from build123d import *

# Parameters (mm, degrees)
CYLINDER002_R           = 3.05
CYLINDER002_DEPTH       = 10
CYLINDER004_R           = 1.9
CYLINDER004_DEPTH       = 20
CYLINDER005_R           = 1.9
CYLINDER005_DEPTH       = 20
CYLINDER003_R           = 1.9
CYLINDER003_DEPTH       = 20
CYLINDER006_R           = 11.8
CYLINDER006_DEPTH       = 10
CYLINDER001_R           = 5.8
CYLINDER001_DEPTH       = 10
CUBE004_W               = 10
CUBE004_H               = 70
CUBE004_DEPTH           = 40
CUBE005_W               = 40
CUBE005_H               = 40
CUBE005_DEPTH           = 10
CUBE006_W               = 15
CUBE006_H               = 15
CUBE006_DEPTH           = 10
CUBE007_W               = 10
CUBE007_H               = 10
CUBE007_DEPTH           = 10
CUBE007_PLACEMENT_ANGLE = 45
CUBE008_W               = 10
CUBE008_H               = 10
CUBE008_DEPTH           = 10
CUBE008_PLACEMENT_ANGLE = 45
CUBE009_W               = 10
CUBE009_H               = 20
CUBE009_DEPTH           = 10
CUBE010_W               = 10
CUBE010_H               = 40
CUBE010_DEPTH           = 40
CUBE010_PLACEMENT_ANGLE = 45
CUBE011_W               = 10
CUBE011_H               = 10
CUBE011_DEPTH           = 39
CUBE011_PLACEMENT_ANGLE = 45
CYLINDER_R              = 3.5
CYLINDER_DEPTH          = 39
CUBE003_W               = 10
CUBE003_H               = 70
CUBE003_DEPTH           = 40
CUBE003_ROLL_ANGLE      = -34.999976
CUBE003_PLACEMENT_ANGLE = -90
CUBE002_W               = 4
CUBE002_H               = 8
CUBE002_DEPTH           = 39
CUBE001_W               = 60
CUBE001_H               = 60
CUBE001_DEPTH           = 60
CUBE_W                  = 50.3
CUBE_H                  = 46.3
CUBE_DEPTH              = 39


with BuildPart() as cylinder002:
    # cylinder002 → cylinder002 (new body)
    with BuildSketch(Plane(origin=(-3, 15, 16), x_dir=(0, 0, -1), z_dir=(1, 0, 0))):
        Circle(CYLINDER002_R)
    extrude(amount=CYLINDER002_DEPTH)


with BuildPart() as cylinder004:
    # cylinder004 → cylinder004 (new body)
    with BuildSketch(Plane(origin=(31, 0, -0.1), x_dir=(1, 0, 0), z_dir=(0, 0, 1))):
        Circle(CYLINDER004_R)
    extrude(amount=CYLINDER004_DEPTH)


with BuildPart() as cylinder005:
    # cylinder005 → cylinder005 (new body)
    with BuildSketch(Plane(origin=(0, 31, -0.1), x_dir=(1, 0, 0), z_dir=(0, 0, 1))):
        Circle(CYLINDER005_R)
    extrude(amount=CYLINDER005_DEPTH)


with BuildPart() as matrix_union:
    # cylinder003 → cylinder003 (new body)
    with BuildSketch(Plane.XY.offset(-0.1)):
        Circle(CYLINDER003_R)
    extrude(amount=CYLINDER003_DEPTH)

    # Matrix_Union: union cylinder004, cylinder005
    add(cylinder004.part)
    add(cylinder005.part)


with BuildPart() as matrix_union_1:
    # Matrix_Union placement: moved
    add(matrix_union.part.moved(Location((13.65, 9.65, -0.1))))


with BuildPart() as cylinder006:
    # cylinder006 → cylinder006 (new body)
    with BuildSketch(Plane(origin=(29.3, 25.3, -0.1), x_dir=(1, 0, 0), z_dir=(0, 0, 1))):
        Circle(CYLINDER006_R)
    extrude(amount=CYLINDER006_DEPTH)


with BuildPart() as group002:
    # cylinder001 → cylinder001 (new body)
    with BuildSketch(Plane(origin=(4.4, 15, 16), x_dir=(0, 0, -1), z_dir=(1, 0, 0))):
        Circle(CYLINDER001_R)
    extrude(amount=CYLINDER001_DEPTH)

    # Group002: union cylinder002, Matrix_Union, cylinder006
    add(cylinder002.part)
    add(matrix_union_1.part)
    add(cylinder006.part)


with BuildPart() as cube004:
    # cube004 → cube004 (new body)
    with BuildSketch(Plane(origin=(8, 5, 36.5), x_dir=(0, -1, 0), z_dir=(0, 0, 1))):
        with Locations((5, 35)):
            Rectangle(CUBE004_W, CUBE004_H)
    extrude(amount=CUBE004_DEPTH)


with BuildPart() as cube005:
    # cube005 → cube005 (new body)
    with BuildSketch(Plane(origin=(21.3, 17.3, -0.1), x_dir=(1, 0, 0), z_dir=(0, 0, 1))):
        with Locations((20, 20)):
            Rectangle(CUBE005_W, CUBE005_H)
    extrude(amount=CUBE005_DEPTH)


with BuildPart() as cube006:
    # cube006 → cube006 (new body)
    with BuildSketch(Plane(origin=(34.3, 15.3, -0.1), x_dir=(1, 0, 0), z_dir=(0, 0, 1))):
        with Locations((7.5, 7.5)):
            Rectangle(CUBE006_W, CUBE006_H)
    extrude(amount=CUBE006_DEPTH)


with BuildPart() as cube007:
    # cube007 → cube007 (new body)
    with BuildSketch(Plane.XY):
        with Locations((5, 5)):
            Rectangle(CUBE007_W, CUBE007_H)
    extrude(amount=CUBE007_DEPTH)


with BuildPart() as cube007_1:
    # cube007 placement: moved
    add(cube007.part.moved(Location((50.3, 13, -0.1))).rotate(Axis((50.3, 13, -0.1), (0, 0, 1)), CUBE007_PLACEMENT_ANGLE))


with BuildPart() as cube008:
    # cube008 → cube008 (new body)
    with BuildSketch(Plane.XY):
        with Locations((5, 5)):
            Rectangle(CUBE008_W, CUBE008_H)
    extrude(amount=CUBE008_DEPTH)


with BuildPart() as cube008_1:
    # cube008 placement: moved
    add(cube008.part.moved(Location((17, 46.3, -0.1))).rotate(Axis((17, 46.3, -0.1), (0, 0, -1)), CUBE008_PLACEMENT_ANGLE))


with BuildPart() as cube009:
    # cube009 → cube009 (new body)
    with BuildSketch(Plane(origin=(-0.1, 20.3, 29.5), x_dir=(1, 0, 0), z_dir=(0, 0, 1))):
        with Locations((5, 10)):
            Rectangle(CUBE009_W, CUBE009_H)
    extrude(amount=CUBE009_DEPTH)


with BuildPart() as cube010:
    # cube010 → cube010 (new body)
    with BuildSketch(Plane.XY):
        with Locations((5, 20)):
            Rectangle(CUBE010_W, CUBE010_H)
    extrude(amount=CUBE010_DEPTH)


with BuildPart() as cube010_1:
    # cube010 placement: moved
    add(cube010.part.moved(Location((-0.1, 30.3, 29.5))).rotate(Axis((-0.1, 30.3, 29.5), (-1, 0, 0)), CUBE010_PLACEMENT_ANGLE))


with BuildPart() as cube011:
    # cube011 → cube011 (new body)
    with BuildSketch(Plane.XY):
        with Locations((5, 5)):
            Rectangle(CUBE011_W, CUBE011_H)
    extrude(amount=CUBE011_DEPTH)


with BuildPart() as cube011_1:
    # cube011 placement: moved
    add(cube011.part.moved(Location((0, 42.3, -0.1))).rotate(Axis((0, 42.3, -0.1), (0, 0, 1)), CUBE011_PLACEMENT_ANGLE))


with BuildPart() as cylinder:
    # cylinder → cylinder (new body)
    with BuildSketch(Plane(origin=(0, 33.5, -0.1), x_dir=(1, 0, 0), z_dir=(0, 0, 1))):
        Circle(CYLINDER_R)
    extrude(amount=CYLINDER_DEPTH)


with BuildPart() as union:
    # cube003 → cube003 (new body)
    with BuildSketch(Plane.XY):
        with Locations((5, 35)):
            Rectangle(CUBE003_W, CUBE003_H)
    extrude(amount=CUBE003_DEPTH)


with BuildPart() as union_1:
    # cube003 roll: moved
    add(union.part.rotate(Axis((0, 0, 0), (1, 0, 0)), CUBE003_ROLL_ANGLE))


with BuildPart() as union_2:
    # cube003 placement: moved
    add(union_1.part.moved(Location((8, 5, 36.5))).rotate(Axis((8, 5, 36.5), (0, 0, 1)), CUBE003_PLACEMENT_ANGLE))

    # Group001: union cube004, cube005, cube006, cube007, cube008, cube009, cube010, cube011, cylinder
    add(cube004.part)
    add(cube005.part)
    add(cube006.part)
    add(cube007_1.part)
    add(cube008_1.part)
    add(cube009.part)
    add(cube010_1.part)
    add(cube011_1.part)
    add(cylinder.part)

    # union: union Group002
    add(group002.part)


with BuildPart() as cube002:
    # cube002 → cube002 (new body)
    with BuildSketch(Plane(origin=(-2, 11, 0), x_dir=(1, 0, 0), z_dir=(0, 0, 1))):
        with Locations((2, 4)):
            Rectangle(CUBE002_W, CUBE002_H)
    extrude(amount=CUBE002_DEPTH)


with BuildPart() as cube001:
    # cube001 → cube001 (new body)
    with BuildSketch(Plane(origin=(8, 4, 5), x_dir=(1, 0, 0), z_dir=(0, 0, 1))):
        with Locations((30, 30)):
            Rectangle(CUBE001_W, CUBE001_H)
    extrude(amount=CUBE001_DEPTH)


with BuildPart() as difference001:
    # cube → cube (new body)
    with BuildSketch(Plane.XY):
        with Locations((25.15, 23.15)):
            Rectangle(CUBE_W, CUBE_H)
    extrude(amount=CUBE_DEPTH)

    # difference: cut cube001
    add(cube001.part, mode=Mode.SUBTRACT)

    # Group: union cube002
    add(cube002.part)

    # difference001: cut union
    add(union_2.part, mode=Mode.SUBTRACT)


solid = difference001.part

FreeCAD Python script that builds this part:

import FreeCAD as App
import Part
import Sketcher

V = App.Vector
Q = App.Units.Quantity


def add_polygon(sketch, points):
    """Adds a closed chain of lines whose ends are joined by coincident constraints."""
    first, n = sketch.GeometryCount, len(points)
    for a, b in zip(points, points[1:] + points[:1]):
        sketch.addGeometry(Part.LineSegment(App.Vector(*a, 0), App.Vector(*b, 0)), False)
    for i in range(n):
        sketch.addConstraint(Sketcher.Constraint("Coincident", first + i, 2, first + (i + 1) % n, 1))

doc = App.newDocument("Part")
body = doc.addObject("PartDesign::Body", "Body")

# Sketch on YZ plane
sketch1 = body.newObject("Sketcher::SketchObject", "Sketch")
sketch1.AttachmentSupport = (doc.getObject("YZ_Plane"), [""])
sketch1.MapMode = "FlatFace"
sketch1.AttachmentOffset = App.Placement(V(0, 0, -3), App.Rotation())
sketch1.addGeometry(Part.Circle(V(15, 16, 0), V(0, 0, 1), 3), False)
sketch1.addConstraint([
    Sketcher.Constraint("Diameter", 0, Q("6.1 mm")),
    Sketcher.Constraint("DistanceX", -1, 1, 0, 3, Q("15 mm")),
    Sketcher.Constraint("DistanceY", -1, 1, 0, 3, Q("16 mm")),
])
pad1 = body.newObject("PartDesign::Pad", "Pad")
pad1.Profile = sketch1
pad1.Length = 10
body2 = doc.addObject("PartDesign::Body", "Body001")

# Sketch on XY plane
sketch2 = body2.newObject("Sketcher::SketchObject", "Sketch001")
sketch2.AttachmentSupport = (doc.getObject("XY_Plane001"), [""])
sketch2.MapMode = "FlatFace"
sketch2.AttachmentOffset = App.Placement(V(0, 0, -0.1), App.Rotation())
sketch2.addGeometry(Part.Circle(V(31, 0, 0), V(0, 0, 1), 1.9), False)
sketch2.addConstraint([
    Sketcher.Constraint("PointOnObject", 0, 3, -1),
    Sketcher.Constraint("Diameter", 0, Q("3.8 mm")),
    Sketcher.Constraint("DistanceX", -1, 1, 0, 3, Q("31 mm")),
])
pad2 = body2.newObject("PartDesign::Pad", "Pad001")
pad2.Profile = sketch2
pad2.Length = 20
body3 = doc.addObject("PartDesign::Body", "Body002")

# Sketch on XY plane
sketch3 = body3.newObject("Sketcher::SketchObject", "Sketch002")
sketch3.AttachmentSupport = (doc.getObject("XY_Plane002"), [""])
sketch3.MapMode = "FlatFace"
sketch3.AttachmentOffset = App.Placement(V(0, 0, -0.1), App.Rotation())
sketch3.addGeometry(Part.Circle(V(0, 31, 0), V(0, 0, 1), 1.9), False)
sketch3.addConstraint([
    Sketcher.Constraint("PointOnObject", 0, 3, -2),
    Sketcher.Constraint("Diameter", 0, Q("3.8 mm")),
    Sketcher.Constraint("DistanceY", -1, 1, 0, 3, Q("31 mm")),
])
pad3 = body3.newObject("PartDesign::Pad", "Pad002")
pad3.Profile = sketch3
pad3.Length = 20
body4 = doc.addObject("PartDesign::Body", "Body003")
body4.AllowCompound = True

# Sketch on XY plane
sketch4 = body4.newObject("Sketcher::SketchObject", "Sketch003")
sketch4.AttachmentSupport = (doc.getObject("XY_Plane003"), [""])
sketch4.MapMode = "FlatFace"
sketch4.AttachmentOffset = App.Placement(V(0, 0, -0.1), App.Rotation())
sketch4.addGeometry(Part.Circle(V(0, 0, 0), V(0, 0, 1), 1.9), False)
sketch4.addConstraint([
    Sketcher.Constraint("Coincident", 0, 3, -1, 1),
    Sketcher.Constraint("Diameter", 0, Q("3.8 mm")),
])
pad4 = body4.newObject("PartDesign::Pad", "Pad003")
pad4.Profile = sketch4
pad4.Length = 20
doc.recompute()

boolean = body4.newObject("PartDesign::Boolean", "Boolean")
boolean.Type = "Fuse"
boolean.addObjects([body2])
doc.recompute()

boolean2 = body4.newObject("PartDesign::Boolean", "Boolean001")
boolean2.Type = "Fuse"
boolean2.addObjects([body3])
body5 = doc.addObject("PartDesign::Body", "Body004")
body5.AllowCompound = True
doc.recompute()

body4.Placement = App.Placement(V(13.65, 9.65, -0.1), App.Rotation(V(0, 0, 1), 0))
boolean3 = body5.newObject("PartDesign::Boolean", "Boolean002")
boolean3.Type = "Fuse"
boolean3.addObjects([body4])
body6 = doc.addObject("PartDesign::Body", "Body005")

# Sketch on XY plane
sketch5 = body6.newObject("Sketcher::SketchObject", "Sketch004")
sketch5.AttachmentSupport = (doc.getObject("XY_Plane005"), [""])
sketch5.MapMode = "FlatFace"
sketch5.AttachmentOffset = App.Placement(V(0, 0, -0.1), App.Rotation())
sketch5.addGeometry(Part.Circle(V(29, 25, 0), V(0, 0, 1), 12), False)
sketch5.addConstraint([
    Sketcher.Constraint("Diameter", 0, Q("23.6 mm")),
    Sketcher.Constraint("DistanceX", -1, 1, 0, 3, Q("29.3 mm")),
    Sketcher.Constraint("DistanceY", -1, 1, 0, 3, Q("25.3 mm")),
])
pad5 = body6.newObject("PartDesign::Pad", "Pad004")
pad5.Profile = sketch5
pad5.Length = 10
body7 = doc.addObject("PartDesign::Body", "Body006")
body7.AllowCompound = True

# Sketch on YZ plane
sketch6 = body7.newObject("Sketcher::SketchObject", "Sketch005")
sketch6.AttachmentSupport = (doc.getObject("YZ_Plane006"), [""])
sketch6.MapMode = "FlatFace"
sketch6.AttachmentOffset = App.Placement(V(0, 0, 4.4), App.Rotation())
sketch6.addGeometry(Part.Circle(V(15, 16, 0), V(0, 0, 1), 6), False)
sketch6.addConstraint([
    Sketcher.Constraint("Diameter", 0, Q("11.6 mm")),
    Sketcher.Constraint("DistanceX", -1, 1, 0, 3, Q("15 mm")),
    Sketcher.Constraint("DistanceY", -1, 1, 0, 3, Q("16 mm")),
])
pad6 = body7.newObject("PartDesign::Pad", "Pad005")
pad6.Profile = sketch6
pad6.Length = 10
doc.recompute()

boolean4 = body7.newObject("PartDesign::Boolean", "Boolean003")
boolean4.Type = "Fuse"
boolean4.addObjects([body])
doc.recompute()

boolean5 = body7.newObject("PartDesign::Boolean", "Boolean004")
boolean5.Type = "Fuse"
boolean5.addObjects([body5])
doc.recompute()

boolean6 = body7.newObject("PartDesign::Boolean", "Boolean005")
boolean6.Type = "Fuse"
boolean6.addObjects([body6])
body8 = doc.addObject("PartDesign::Body", "Body007")

# Sketch on XY plane
sketch7 = body8.newObject("Sketcher::SketchObject", "Sketch006")
sketch7.AttachmentSupport = (doc.getObject("XY_Plane007"), [""])
sketch7.MapMode = "FlatFace"
sketch7.AttachmentOffset = App.Placement(V(0, 0, 36.5), App.Rotation())
add_polygon(sketch7, [(78, 5), (8, 5), (8, -5), (78, -5)])  # lines 0-3
sketch7.addConstraint([
    Sketcher.Constraint("Horizontal", 0),
    Sketcher.Constraint("Vertical", 1),
    Sketcher.Constraint("Horizontal", 2),
    Sketcher.Constraint("Vertical", 3),
    Sketcher.Constraint("DistanceX", 0, 2, 0, 1, Q("70 mm")),
    Sketcher.Constraint("DistanceY", 1, 2, 1, 1, Q("10 mm")),
    Sketcher.Constraint("DistanceX", -1, 1, 0, 2, Q("8 mm")),
    Sketcher.Constraint("DistanceY", -1, 1, 0, 2, Q("5 mm")),
])
pad7 = body8.newObject("PartDesign::Pad", "Pad006")
pad7.Profile = sketch7
pad7.Length = 40
body9 = doc.addObject("PartDesign::Body", "Body008")

# Sketch on XY plane
sketch8 = body9.newObject("Sketcher::SketchObject", "Sketch007")
sketch8.AttachmentSupport = (doc.getObject("XY_Plane008"), [""])
sketch8.MapMode = "FlatFace"
sketch8.AttachmentOffset = App.Placement(V(0, 0, -0.1), App.Rotation())
add_polygon(sketch8, [(21, 57), (21, 17), (61, 17), (61, 57)])  # lines 0-3
sketch8.addConstraint([
    Sketcher.Constraint("Vertical", 0),
    Sketcher.Constraint("Horizontal", 1),
    Sketcher.Constraint("Vertical", 2),
    Sketcher.Constraint("Horizontal", 3),
    Sketcher.Constraint("Equal", 3, 0),
    Sketcher.Constraint("DistanceX", 1, 1, 1, 2, Q("40 mm")),
    Sketcher.Constraint("DistanceX", -1, 1, 0, 2, Q("21.3 mm")),
    Sketcher.Constraint("DistanceY", -1, 1, 0, 2, Q("17.3 mm")),
])
pad8 = body9.newObject("PartDesign::Pad", "Pad007")
pad8.Profile = sketch8
pad8.Length = 10
body10 = doc.addObject("PartDesign::Body", "Body009")

# Sketch on XY plane
sketch9 = body10.newObject("Sketcher::SketchObject", "Sketch008")
sketch9.AttachmentSupport = (doc.getObject("XY_Plane009"), [""])
sketch9.MapMode = "FlatFace"
sketch9.AttachmentOffset = App.Placement(V(0, 0, -0.1), App.Rotation())
add_polygon(sketch9, [(34, 30), (34, 15), (49, 15), (49, 30)])  # lines 0-3
sketch9.addConstraint([
    Sketcher.Constraint("Vertical", 0),
    Sketcher.Constraint("Horizontal", 1),
    Sketcher.Constraint("Vertical", 2),
    Sketcher.Constraint("Horizontal", 3),
    Sketcher.Constraint("Equal", 3, 0),
    Sketcher.Constraint("DistanceX", 1, 1, 1, 2, Q("15 mm")),
    Sketcher.Constraint("DistanceX", -1, 1, 0, 2, Q("34.3 mm")),
    Sketcher.Constraint("DistanceY", -1, 1, 0, 2, Q("15.3 mm")),
])
pad9 = body10.newObject("PartDesign::Pad", "Pad008")
pad9.Profile = sketch9
pad9.Length = 10
body11 = doc.addObject("PartDesign::Body", "Body010")

# Sketch on XY plane
sketch10 = body11.newObject("Sketcher::SketchObject", "Sketch009")
sketch10.AttachmentSupport = (doc.getObject("XY_Plane010"), [""])
sketch10.MapMode = "FlatFace"
add_polygon(sketch10, [(0, 10), (0, 0), (10, 0), (10, 10)])  # lines 0-3
sketch10.addConstraint([
    Sketcher.Constraint("Vertical", 0),
    Sketcher.Constraint("Horizontal", 1),
    Sketcher.Constraint("Vertical", 2),
    Sketcher.Constraint("Horizontal", 3),
    Sketcher.Constraint("Coincident", 0, 2, -1, 1),
    Sketcher.Constraint("Equal", 3, 0),
    Sketcher.Constraint("DistanceX", 1, 1, 1, 2, Q("10 mm")),
])
pad10 = body11.newObject("PartDesign::Pad", "Pad009")
pad10.Profile = sketch10
pad10.Length = 10
body12 = doc.addObject("PartDesign::Body", "Body011")
doc.recompute()

body11.Placement = App.Placement(V(50.3, 13, -0.1), App.Rotation(V(0, 0, 1), 45))
boolean7 = body12.newObject("PartDesign::Boolean", "Boolean006")
boolean7.Type = "Fuse"
boolean7.addObjects([body11])
body13 = doc.addObject("PartDesign::Body", "Body012")

# Sketch on XY plane
sketch11 = body13.newObject("Sketcher::SketchObject", "Sketch010")
sketch11.AttachmentSupport = (doc.getObject("XY_Plane012"), [""])
sketch11.MapMode = "FlatFace"
add_polygon(sketch11, [(0, 10), (0, 0), (10, 0), (10, 10)])  # lines 0-3
sketch11.addConstraint([
    Sketcher.Constraint("Vertical", 0),
    Sketcher.Constraint("Horizontal", 1),
    Sketcher.Constraint("Vertical", 2),
    Sketcher.Constraint("Horizontal", 3),
    Sketcher.Constraint("Coincident", 0, 2, -1, 1),
    Sketcher.Constraint("Equal", 3, 0),
    Sketcher.Constraint("DistanceX", 1, 1, 1, 2, Q("10 mm")),
])
pad11 = body13.newObject("PartDesign::Pad", "Pad010")
pad11.Profile = sketch11
pad11.Length = 10
body14 = doc.addObject("PartDesign::Body", "Body013")
doc.recompute()

body13.Placement = App.Placement(V(17, 46.3, -0.1), App.Rotation(V(0, 0, -1), 45))
boolean8 = body14.newObject("PartDesign::Boolean", "Boolean007")
boolean8.Type = "Fuse"
boolean8.addObjects([body13])
body15 = doc.addObject("PartDesign::Body", "Body014")

# Sketch on XY plane
sketch12 = body15.newObject("Sketcher::SketchObject", "Sketch011")
sketch12.AttachmentSupport = (doc.getObject("XY_Plane014"), [""])
sketch12.MapMode = "FlatFace"
sketch12.AttachmentOffset = App.Placement(V(0, 0, 29.5), App.Rotation())
add_polygon(sketch12, [(0, 40), (0, 20), (10, 20), (10, 40)])  # lines 0-3
sketch12.addConstraint([
    Sketcher.Constraint("Vertical", 0),
    Sketcher.Constraint("Horizontal", 1),
    Sketcher.Constraint("Vertical", 2),
    Sketcher.Constraint("Horizontal", 3),
    Sketcher.Constraint("DistanceX", 1, 1, 1, 2, Q("10 mm")),
    Sketcher.Constraint("DistanceY", 0, 2, 0, 1, Q("20 mm")),
    Sketcher.Constraint("DistanceX", 0, 2, -1, 1, Q("0.1 mm")),
    Sketcher.Constraint("DistanceY", -1, 1, 0, 2, Q("20.3 mm")),
])
pad12 = body15.newObject("PartDesign::Pad", "Pad011")
pad12.Profile = sketch12
pad12.Length = 10
body16 = doc.addObject("PartDesign::Body", "Body015")

# Sketch on XY plane
sketch13 = body16.newObject("Sketcher::SketchObject", "Sketch012")
sketch13.AttachmentSupport = (doc.getObject("XY_Plane015"), [""])
sketch13.MapMode = "FlatFace"
add_polygon(sketch13, [(0, 40), (0, 0), (10, 0), (10, 40)])  # lines 0-3
sketch13.addConstraint([
    Sketcher.Constraint("Vertical", 0),
    Sketcher.Constraint("Horizontal", 1),
    Sketcher.Constraint("Vertical", 2),
    Sketcher.Constraint("Horizontal", 3),
    Sketcher.Constraint("Coincident", 0, 2, -1, 1),
    Sketcher.Constraint("DistanceX", 1, 1, 1, 2, Q("10 mm")),
    Sketcher.Constraint("DistanceY", 0, 2, 0, 1, Q("40 mm")),
])
pad13 = body16.newObject("PartDesign::Pad", "Pad012")
pad13.Profile = sketch13
pad13.Length = 40
body17 = doc.addObject("PartDesign::Body", "Body016")
doc.recompute()

body16.Placement = App.Placement(V(-0.1, 30.3, 29.5), App.Rotation(V(-1, 0, 0), 45))
boolean9 = body17.newObject("PartDesign::Boolean", "Boolean008")
boolean9.Type = "Fuse"
boolean9.addObjects([body16])
body18 = doc.addObject("PartDesign::Body", "Body017")

# Sketch on XY plane
sketch14 = body18.newObject("Sketcher::SketchObject", "Sketch013")
sketch14.AttachmentSupport = (doc.getObject("XY_Plane017"), [""])
sketch14.MapMode = "FlatFace"
add_polygon(sketch14, [(0, 10), (0, 0), (10, 0), (10, 10)])  # lines 0-3
sketch14.addConstraint([
    Sketcher.Constraint("Vertical", 0),
    Sketcher.Constraint("Horizontal", 1),
    Sketcher.Constraint("Vertical", 2),
    Sketcher.Constraint("Horizontal", 3),
    Sketcher.Constraint("Coincident", 0, 2, -1, 1),
    Sketcher.Constraint("Equal", 3, 0),
    Sketcher.Constraint("DistanceX", 1, 1, 1, 2, Q("10 mm")),
])
pad14 = body18.newObject("PartDesign::Pad", "Pad013")
pad14.Profile = sketch14
pad14.Length = 39
body19 = doc.addObject("PartDesign::Body", "Body018")
doc.recompute()

body18.Placement = App.Placement(V(0, 42.3, -0.1), App.Rotation(V(0, 0, 1), 45))
boolean10 = body19.newObject("PartDesign::Boolean", "Boolean009")
boolean10.Type = "Fuse"
boolean10.addObjects([body18])
body20 = doc.addObject("PartDesign::Body", "Body019")

# Sketch on XY plane
sketch15 = body20.newObject("Sketcher::SketchObject", "Sketch014")
sketch15.AttachmentSupport = (doc.getObject("XY_Plane019"), [""])
sketch15.MapMode = "FlatFace"
sketch15.AttachmentOffset = App.Placement(V(0, 0, -0.1), App.Rotation())
sketch15.addGeometry(Part.Circle(V(0, 33.5, 0), V(0, 0, 1), 3.5), False)
sketch15.addConstraint([
    Sketcher.Constraint("PointOnObject", 0, 3, -2),
    Sketcher.Constraint("Diameter", 0, Q("7 mm")),
    Sketcher.Constraint("DistanceY", -1, 1, 0, 3, Q("33.5 mm")),
])
pad15 = body20.newObject("PartDesign::Pad", "Pad014")
pad15.Profile = sketch15
pad15.Length = 39
body21 = doc.addObject("PartDesign::Body", "Body020")

# Sketch on XY plane
sketch16 = body21.newObject("Sketcher::SketchObject", "Sketch015")
sketch16.AttachmentSupport = (doc.getObject("XY_Plane020"), [""])
sketch16.MapMode = "FlatFace"
add_polygon(sketch16, [(0, 70), (0, 0), (10, 0), (10, 70)])  # lines 0-3
sketch16.addConstraint([
    Sketcher.Constraint("Vertical", 0),
    Sketcher.Constraint("Horizontal", 1),
    Sketcher.Constraint("Vertical", 2),
    Sketcher.Constraint("Horizontal", 3),
    Sketcher.Constraint("Coincident", 0, 2, -1, 1),
    Sketcher.Constraint("DistanceX", 1, 1, 1, 2, Q("10 mm")),
    Sketcher.Constraint("DistanceY", 0, 2, 0, 1, Q("70 mm")),
])
pad16 = body21.newObject("PartDesign::Pad", "Pad015")
pad16.Profile = sketch16
pad16.Length = 40
body22 = doc.addObject("PartDesign::Body", "Body021")
doc.recompute()

body21.Placement = App.Placement(V(0, 0, 0), App.Rotation(V(1, 0, 0), 325.000024))
boolean11 = body22.newObject("PartDesign::Boolean", "Boolean010")
boolean11.Type = "Fuse"
boolean11.addObjects([body21])
body23 = doc.addObject("PartDesign::Body", "Body022")
body23.AllowCompound = True
doc.recompute()

body22.Placement = App.Placement(V(8, 5, 36.5), App.Rotation(V(0, 0, 1), 270))
boolean12 = body23.newObject("PartDesign::Boolean", "Boolean011")
boolean12.Type = "Fuse"
boolean12.addObjects([body22])
doc.recompute()

boolean13 = body23.newObject("PartDesign::Boolean", "Boolean012")
boolean13.Type = "Fuse"
boolean13.addObjects([body8])
doc.recompute()

boolean14 = body23.newObject("PartDesign::Boolean", "Boolean013")
boolean14.Type = "Fuse"
boolean14.addObjects([body9])
doc.recompute()

boolean15 = body23.newObject("PartDesign::Boolean", "Boolean014")
boolean15.Type = "Fuse"
boolean15.addObjects([body10])
doc.recompute()

boolean16 = body23.newObject("PartDesign::Boolean", "Boolean015")
boolean16.Type = "Fuse"
boolean16.addObjects([body12])
doc.recompute()

boolean17 = body23.newObject("PartDesign::Boolean", "Boolean016")
boolean17.Type = "Fuse"
boolean17.addObjects([body14])
doc.recompute()

boolean18 = body23.newObject("PartDesign::Boolean", "Boolean017")
boolean18.Type = "Fuse"
boolean18.addObjects([body15])
doc.recompute()

boolean19 = body23.newObject("PartDesign::Boolean", "Boolean018")
boolean19.Type = "Fuse"
boolean19.addObjects([body17])
doc.recompute()

boolean20 = body23.newObject("PartDesign::Boolean", "Boolean019")
boolean20.Type = "Fuse"
boolean20.addObjects([body19])
doc.recompute()

boolean21 = body23.newObject("PartDesign::Boolean", "Boolean020")
boolean21.Type = "Fuse"
boolean21.addObjects([body20])
doc.recompute()

boolean22 = body23.newObject("PartDesign::Boolean", "Boolean021")
boolean22.Type = "Fuse"
boolean22.addObjects([body7])
body24 = doc.addObject("PartDesign::Body", "Body023")

# Sketch on XY plane
sketch17 = body24.newObject("Sketcher::SketchObject", "Sketch016")
sketch17.AttachmentSupport = (doc.getObject("XY_Plane023"), [""])
sketch17.MapMode = "FlatFace"
add_polygon(sketch17, [(-2, 19), (-2, 11), (2, 11), (2, 19)])  # lines 0-3
sketch17.addConstraint([
    Sketcher.Constraint("Vertical", 0),
    Sketcher.Constraint("Horizontal", 1),
    Sketcher.Constraint("Vertical", 2),
    Sketcher.Constraint("Horizontal", 3),
    Sketcher.Constraint("DistanceX", 1, 1, 1, 2, Q("4 mm")),
    Sketcher.Constraint("DistanceY", 0, 2, 0, 1, Q("8 mm")),
    Sketcher.Constraint("DistanceX", 0, 2, -1, 1, Q("2 mm")),
    Sketcher.Constraint("DistanceY", -1, 1, 0, 2, Q("11 mm")),
])
pad17 = body24.newObject("PartDesign::Pad", "Pad016")
pad17.Profile = sketch17
pad17.Length = 39
body25 = doc.addObject("PartDesign::Body", "Body024")

# Sketch on XY plane
sketch18 = body25.newObject("Sketcher::SketchObject", "Sketch017")
sketch18.AttachmentSupport = (doc.getObject("XY_Plane024"), [""])
sketch18.MapMode = "FlatFace"
sketch18.AttachmentOffset = App.Placement(V(0, 0, 5), App.Rotation())
add_polygon(sketch18, [(8, 64), (8, 4), (68, 4), (68, 64)])  # lines 0-3
sketch18.addConstraint([
    Sketcher.Constraint("Vertical", 0),
    Sketcher.Constraint("Horizontal", 1),
    Sketcher.Constraint("Vertical", 2),
    Sketcher.Constraint("Horizontal", 3),
    Sketcher.Constraint("Equal", 3, 0),
    Sketcher.Constraint("DistanceX", 1, 1, 1, 2, Q("60 mm")),
    Sketcher.Constraint("DistanceX", -1, 1, 0, 2, Q("8 mm")),
    Sketcher.Constraint("DistanceY", -1, 1, 0, 2, Q("4 mm")),
])
pad18 = body25.newObject("PartDesign::Pad", "Pad017")
pad18.Profile = sketch18
pad18.Length = 60
body26 = doc.addObject("PartDesign::Body", "Body025")

# Sketch on XY plane
sketch19 = body26.newObject("Sketcher::SketchObject", "Sketch018")
sketch19.AttachmentSupport = (doc.getObject("XY_Plane025"), [""])
sketch19.MapMode = "FlatFace"
add_polygon(sketch19, [(0, 46), (0, 0), (50, 0), (50, 46)])  # lines 0-3
sketch19.addConstraint([
    Sketcher.Constraint("Vertical", 0),
    Sketcher.Constraint("Horizontal", 1),
    Sketcher.Constraint("Vertical", 2),
    Sketcher.Constraint("Horizontal", 3),
    Sketcher.Constraint("Coincident", 0, 2, -1, 1),
    Sketcher.Constraint("DistanceX", 1, 1, 1, 2, Q("50.3 mm")),
    Sketcher.Constraint("DistanceY", 0, 2, 0, 1, Q("46.3 mm")),
])
pad19 = body26.newObject("PartDesign::Pad", "Pad018")
pad19.Profile = sketch19
pad19.Length = 39
doc.recompute()

boolean23 = body26.newObject("PartDesign::Boolean", "Boolean022")
boolean23.Type = "Cut"
boolean23.addObjects([body25])
doc.recompute()

boolean24 = body26.newObject("PartDesign::Boolean", "Boolean023")
boolean24.Type = "Fuse"
boolean24.addObjects([body24])
doc.recompute()

boolean25 = body26.newObject("PartDesign::Boolean", "Boolean024")
boolean25.Type = "Cut"
boolean25.addObjects([body23])

doc.recompute()
